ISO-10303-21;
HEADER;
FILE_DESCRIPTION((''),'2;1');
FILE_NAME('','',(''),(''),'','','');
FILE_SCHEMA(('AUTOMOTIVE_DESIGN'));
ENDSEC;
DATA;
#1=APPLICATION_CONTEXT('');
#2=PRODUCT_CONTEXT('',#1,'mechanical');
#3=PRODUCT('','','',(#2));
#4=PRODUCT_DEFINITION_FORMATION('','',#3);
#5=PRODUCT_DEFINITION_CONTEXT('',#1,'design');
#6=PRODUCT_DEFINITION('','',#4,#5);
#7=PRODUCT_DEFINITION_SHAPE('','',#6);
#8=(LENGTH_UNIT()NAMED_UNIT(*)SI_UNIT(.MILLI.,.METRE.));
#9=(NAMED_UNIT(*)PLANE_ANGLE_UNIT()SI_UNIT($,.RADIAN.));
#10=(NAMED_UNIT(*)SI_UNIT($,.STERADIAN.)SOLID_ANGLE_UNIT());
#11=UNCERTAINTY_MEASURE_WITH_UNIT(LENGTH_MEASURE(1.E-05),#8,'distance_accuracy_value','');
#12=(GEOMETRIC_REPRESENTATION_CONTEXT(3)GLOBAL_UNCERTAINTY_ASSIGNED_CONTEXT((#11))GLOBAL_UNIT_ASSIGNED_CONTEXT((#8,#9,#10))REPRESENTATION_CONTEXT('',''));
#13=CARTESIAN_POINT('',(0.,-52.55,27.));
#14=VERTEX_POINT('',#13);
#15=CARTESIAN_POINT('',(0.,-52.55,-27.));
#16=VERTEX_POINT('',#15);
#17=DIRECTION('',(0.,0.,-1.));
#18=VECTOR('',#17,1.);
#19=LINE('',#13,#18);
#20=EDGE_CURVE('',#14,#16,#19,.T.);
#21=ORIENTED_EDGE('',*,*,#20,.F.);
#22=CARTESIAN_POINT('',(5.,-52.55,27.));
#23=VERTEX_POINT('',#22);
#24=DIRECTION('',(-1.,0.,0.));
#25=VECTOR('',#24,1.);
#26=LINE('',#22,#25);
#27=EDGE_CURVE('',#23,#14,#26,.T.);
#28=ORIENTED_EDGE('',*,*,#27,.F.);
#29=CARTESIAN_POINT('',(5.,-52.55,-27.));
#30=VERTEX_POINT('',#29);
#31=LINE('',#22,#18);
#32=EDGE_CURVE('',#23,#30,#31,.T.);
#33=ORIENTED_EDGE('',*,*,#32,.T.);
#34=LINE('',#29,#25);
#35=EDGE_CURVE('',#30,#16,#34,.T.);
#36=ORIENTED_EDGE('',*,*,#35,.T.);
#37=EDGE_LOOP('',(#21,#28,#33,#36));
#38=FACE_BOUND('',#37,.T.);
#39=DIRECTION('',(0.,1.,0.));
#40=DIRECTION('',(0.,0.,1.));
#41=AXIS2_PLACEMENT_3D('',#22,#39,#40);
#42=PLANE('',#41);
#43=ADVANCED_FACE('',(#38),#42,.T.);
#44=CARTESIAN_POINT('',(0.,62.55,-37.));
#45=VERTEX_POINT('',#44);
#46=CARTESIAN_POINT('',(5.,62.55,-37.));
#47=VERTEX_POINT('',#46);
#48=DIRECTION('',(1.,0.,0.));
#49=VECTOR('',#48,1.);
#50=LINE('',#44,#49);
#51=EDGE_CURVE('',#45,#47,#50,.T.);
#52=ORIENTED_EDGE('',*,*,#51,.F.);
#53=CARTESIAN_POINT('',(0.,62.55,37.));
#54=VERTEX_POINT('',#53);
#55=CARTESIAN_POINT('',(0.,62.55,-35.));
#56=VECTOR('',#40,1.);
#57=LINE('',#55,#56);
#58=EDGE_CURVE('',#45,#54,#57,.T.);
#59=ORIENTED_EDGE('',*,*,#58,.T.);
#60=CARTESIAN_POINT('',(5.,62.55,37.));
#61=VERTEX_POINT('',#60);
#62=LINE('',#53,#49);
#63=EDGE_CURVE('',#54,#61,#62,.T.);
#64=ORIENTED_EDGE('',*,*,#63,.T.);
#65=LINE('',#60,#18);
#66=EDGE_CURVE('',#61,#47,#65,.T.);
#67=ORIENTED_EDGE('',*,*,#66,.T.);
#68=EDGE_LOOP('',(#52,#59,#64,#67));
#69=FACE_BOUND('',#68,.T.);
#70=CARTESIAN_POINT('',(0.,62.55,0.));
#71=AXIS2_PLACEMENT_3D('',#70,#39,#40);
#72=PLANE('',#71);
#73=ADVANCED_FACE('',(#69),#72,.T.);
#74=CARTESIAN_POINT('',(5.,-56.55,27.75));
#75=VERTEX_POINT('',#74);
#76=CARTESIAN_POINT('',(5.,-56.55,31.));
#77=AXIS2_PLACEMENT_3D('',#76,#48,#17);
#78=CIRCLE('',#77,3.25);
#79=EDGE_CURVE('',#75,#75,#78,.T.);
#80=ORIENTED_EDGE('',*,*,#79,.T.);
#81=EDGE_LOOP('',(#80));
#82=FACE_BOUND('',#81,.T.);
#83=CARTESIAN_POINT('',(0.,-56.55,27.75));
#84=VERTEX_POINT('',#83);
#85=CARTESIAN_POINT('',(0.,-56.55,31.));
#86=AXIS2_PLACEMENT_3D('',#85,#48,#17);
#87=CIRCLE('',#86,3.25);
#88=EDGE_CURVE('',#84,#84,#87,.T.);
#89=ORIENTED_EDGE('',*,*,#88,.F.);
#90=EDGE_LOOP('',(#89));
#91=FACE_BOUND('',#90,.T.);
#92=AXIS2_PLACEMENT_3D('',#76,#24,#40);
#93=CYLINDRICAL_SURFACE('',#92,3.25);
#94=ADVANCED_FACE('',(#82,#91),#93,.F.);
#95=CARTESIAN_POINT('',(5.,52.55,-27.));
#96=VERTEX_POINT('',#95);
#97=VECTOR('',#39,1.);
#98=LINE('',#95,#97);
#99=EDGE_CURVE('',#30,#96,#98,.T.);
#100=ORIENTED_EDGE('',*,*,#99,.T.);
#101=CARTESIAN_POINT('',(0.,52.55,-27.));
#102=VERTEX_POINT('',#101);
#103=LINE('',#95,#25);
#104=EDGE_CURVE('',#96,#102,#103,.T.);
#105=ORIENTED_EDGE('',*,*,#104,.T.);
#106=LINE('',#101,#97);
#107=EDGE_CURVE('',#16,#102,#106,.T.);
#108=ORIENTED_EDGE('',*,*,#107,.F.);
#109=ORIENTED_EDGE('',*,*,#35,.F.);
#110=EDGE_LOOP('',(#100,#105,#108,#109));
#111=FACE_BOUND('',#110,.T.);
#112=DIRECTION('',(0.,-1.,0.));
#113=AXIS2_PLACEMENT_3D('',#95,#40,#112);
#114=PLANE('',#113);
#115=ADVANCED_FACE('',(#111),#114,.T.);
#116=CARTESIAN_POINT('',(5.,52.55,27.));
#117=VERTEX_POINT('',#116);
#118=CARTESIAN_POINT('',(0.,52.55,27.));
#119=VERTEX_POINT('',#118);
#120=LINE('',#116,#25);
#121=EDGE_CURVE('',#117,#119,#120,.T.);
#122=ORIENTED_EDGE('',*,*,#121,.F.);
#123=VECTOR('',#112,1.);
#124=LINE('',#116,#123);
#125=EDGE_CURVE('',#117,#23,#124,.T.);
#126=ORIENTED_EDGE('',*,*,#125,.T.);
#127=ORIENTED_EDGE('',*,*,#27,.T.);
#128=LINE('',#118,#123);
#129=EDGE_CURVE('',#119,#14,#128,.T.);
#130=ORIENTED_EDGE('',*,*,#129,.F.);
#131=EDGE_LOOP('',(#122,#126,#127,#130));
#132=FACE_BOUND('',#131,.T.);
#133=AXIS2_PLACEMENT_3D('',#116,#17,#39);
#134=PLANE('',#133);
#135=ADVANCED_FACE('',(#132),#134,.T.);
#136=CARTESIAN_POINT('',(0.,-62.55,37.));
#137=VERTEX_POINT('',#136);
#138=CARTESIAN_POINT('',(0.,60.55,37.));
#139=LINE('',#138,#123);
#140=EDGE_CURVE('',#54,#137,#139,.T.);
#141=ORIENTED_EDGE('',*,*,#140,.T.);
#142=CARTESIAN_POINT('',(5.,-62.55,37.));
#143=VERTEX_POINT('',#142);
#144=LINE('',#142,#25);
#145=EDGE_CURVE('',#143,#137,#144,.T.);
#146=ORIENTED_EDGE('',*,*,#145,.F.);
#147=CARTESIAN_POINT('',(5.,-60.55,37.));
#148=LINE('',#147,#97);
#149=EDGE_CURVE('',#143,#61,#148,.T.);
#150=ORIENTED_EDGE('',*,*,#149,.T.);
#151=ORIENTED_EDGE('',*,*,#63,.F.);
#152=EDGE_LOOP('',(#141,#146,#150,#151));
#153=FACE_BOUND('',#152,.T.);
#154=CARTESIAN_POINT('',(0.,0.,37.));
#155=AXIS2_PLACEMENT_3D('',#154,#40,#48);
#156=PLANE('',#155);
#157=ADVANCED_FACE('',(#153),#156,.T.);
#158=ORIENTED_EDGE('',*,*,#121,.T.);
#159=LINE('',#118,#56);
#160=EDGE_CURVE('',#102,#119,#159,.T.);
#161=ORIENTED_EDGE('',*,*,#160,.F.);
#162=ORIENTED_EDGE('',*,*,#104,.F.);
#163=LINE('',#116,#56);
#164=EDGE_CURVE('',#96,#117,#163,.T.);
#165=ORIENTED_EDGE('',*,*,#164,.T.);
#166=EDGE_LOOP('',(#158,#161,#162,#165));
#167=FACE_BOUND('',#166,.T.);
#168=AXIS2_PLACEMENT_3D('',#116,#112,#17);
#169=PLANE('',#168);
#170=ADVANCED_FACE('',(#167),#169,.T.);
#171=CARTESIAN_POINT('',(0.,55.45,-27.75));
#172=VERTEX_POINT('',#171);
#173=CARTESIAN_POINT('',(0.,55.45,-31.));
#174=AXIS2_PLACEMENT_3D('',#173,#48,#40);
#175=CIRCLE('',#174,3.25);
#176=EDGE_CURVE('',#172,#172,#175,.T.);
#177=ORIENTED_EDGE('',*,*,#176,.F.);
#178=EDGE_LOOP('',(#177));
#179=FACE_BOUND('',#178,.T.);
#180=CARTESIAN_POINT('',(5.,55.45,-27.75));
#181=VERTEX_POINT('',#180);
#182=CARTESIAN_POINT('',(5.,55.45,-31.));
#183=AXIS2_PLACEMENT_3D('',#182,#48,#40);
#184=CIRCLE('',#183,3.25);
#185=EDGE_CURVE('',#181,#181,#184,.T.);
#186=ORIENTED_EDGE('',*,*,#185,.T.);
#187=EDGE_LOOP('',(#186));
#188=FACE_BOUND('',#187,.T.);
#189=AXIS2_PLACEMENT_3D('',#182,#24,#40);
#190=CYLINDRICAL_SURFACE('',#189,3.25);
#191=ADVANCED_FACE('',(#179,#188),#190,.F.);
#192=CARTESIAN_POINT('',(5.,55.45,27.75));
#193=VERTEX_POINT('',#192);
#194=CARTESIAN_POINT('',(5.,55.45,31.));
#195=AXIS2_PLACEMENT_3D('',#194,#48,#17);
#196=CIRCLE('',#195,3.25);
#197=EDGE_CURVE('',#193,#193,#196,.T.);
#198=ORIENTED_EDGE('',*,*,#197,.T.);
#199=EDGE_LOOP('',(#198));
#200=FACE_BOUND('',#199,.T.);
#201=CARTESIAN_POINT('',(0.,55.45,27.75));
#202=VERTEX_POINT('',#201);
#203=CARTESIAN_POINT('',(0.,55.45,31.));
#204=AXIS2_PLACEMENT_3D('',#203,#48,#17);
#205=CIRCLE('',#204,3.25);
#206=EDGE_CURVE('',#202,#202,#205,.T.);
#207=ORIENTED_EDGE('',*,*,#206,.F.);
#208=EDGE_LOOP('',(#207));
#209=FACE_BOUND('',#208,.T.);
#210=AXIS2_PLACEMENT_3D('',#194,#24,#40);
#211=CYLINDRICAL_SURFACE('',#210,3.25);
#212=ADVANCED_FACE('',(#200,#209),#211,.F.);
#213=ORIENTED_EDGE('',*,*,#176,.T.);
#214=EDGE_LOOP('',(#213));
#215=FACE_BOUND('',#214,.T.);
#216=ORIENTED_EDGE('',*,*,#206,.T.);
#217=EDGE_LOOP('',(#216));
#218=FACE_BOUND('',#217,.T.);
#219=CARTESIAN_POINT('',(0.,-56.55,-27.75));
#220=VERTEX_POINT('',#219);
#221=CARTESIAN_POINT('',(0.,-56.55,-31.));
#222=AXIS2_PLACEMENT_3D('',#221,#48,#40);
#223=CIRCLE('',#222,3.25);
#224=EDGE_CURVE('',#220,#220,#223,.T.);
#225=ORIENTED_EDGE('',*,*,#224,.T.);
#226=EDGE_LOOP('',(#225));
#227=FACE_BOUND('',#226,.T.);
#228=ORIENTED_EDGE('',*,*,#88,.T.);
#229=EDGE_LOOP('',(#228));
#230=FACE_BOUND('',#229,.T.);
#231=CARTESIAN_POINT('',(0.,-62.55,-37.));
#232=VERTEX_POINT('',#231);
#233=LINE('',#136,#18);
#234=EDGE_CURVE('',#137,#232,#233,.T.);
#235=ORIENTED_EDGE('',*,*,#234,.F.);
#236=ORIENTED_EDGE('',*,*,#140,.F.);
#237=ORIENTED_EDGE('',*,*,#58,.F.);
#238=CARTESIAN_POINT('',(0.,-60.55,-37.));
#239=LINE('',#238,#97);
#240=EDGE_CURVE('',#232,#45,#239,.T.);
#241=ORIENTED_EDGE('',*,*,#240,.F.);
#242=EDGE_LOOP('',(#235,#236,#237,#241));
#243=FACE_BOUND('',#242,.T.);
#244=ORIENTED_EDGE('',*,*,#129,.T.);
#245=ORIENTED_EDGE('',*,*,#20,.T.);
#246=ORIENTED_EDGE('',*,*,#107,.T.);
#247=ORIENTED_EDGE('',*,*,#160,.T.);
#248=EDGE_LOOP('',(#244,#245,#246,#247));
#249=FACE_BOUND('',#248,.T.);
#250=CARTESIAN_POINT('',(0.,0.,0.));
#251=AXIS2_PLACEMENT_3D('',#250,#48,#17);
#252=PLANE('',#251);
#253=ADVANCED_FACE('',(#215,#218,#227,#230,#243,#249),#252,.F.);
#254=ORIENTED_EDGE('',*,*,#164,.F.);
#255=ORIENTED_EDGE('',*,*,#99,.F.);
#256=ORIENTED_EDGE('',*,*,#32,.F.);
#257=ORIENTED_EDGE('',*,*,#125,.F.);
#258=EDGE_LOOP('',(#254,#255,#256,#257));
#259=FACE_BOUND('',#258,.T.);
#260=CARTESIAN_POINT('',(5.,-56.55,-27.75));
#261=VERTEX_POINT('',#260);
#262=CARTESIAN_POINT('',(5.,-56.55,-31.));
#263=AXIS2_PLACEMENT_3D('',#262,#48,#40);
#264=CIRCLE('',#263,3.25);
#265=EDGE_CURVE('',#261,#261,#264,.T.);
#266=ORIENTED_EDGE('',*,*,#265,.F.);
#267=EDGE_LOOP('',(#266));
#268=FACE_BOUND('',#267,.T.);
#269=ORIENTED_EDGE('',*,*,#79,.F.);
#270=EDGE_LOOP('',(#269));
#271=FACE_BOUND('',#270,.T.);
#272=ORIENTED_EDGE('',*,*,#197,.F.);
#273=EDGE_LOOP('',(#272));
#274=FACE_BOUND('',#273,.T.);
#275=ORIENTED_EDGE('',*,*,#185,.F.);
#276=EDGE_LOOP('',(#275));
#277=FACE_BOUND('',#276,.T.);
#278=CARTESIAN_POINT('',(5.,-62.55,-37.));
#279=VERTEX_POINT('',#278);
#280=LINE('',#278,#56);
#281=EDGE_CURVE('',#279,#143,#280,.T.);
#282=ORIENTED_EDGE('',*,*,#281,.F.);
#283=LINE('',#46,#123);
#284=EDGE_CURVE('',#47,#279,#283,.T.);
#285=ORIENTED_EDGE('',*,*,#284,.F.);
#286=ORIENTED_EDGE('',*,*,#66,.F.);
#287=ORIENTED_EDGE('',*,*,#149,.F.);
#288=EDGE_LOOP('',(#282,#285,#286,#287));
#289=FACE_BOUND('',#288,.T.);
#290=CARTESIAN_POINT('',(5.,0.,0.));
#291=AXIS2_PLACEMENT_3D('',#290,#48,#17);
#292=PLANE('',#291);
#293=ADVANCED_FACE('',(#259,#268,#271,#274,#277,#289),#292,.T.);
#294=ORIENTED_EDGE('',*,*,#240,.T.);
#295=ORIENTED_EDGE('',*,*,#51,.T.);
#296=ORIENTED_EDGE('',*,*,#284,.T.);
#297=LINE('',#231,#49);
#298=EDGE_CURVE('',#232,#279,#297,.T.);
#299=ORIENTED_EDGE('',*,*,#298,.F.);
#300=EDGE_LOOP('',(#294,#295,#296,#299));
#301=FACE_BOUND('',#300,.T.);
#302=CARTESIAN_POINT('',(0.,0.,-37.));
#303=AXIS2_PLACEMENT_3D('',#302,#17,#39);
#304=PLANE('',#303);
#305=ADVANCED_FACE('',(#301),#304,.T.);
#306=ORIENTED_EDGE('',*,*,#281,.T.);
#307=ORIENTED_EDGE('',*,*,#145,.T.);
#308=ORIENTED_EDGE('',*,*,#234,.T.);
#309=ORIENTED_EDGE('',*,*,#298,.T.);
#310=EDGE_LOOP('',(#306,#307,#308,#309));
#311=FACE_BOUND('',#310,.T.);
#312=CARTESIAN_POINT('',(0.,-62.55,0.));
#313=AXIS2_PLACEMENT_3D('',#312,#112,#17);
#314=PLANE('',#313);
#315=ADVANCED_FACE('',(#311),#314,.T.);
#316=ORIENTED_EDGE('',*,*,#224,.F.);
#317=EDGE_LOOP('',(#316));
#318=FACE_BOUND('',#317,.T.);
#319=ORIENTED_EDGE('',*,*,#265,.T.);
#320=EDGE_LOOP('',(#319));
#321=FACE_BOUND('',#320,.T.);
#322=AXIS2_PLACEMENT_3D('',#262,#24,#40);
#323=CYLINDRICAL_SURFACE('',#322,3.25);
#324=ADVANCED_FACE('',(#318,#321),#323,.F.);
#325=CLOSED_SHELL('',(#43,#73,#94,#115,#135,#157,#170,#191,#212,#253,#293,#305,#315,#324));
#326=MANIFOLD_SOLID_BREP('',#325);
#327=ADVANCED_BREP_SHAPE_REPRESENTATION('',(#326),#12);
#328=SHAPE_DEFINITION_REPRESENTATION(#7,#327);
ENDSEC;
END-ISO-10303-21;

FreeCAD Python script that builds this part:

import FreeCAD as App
import Part
import Sketcher
from FreeCAD import Vector

doc = App.newDocument("Part")
params = doc.addObject("Spreadsheet::Sheet", "Params")
for row, (alias, value) in enumerate([
    ("sketch1_diameter", "6.5 mm"),
    ("sketch1_height", "70 mm"),
    ("sketch1_height2", "54 mm"),
    ("sketch1_width", "121.1 mm"),
    ("sketch1_width2", "105.1 mm"),
    ("pad1_length", "5 mm"),
    ("sketch2_width", "5 mm"),
    ("sketch2_height", "121.1 mm"),
    ("pad2_length", "2 mm"),
    ("sketch3_width", "5 mm"),
    ("sketch3_height", "72 mm"),
    ("pad3_length", "2 mm"),
    ("sketch4_width", "5 mm"),
    ("sketch4_height", "123.1 mm"),
    ("pad4_length", "2 mm"),
    ("sketch5_width", "5 mm"),
    ("sketch5_height", "74 mm"),
    ("pad5_length", "2 mm"),
], start=1):
    params.set(f"A{row}", alias)
    params.set(f"B{row}", "=" + value)
    params.setAlias(f"B{row}", alias)

body = doc.addObject("PartDesign::Body", "Body")

# Sketch on YZ plane
sketch1 = doc.addObject("Sketcher::SketchObject", "Sketch")
body.addObject(sketch1)
sketch1.AttachmentSupport = (doc.YZ_Plane, [""])
sketch1.MapMode = "FlatFace"
sketch1.addGeometry(Part.LineSegment(Vector(60.55, 35, 0), Vector(-60.55, 35, 0)), False)
sketch1.addGeometry(Part.LineSegment(Vector(-60.55, 35, 0), Vector(-60.55, -35, 0)), False)
sketch1.addGeometry(Part.LineSegment(Vector(-60.55, -35, 0), Vector(60.55, -35, 0)), False)
sketch1.addGeometry(Part.LineSegment(Vector(60.55, -35, 0), Vector(60.55, 35, 0)), False)
sketch1.addGeometry(Part.Circle(Vector(-56.55, 31, 0), Vector(0, 0, 1), 3.25), False)
sketch1.addGeometry(Part.Circle(Vector(-56.55, -31, 0), Vector(0, 0, 1), 3.25), False)
sketch1.addGeometry(Part.Circle(Vector(55.45, 31, 0), Vector(0, 0, 1), 3.25), False)
sketch1.addGeometry(Part.LineSegment(Vector(-52.55, -27, 0), Vector(-52.55, 27, 0)), False)
sketch1.addGeometry(Part.LineSegment(Vector(-52.55, 27, 0), Vector(52.55, 27, 0)), False)
sketch1.addGeometry(Part.LineSegment(Vector(52.55, 27, 0), Vector(52.55, -27, 0)), False)
sketch1.addGeometry(Part.LineSegment(Vector(52.55, -27, 0), Vector(-52.55, -27, 0)), False)
sketch1.addGeometry(Part.Circle(Vector(55.45, -31, 0), Vector(0, 0, 1), 3.25), False)
sketch1.addConstraint(Sketcher.Constraint("Coincident", 0, 2, 1, 1))
sketch1.addConstraint(Sketcher.Constraint("Coincident", 1, 2, 2, 1))
sketch1.addConstraint(Sketcher.Constraint("Coincident", 2, 2, 3, 1))
sketch1.addConstraint(Sketcher.Constraint("Coincident", 3, 2, 0, 1))
sketch1.addConstraint(Sketcher.Constraint("Coincident", 7, 2, 8, 1))
sketch1.addConstraint(Sketcher.Constraint("Coincident", 8, 2, 9, 1))
sketch1.addConstraint(Sketcher.Constraint("Coincident", 9, 2, 10, 1))
sketch1.addConstraint(Sketcher.Constraint("Coincident", 10, 2, 7, 1))
sketch1.addConstraint(Sketcher.Constraint("Horizontal", 0))
sketch1.addConstraint(Sketcher.Constraint("Vertical", 1))
sketch1.addConstraint(Sketcher.Constraint("Horizontal", 2))
sketch1.addConstraint(Sketcher.Constraint("Vertical", 3))
sketch1.addConstraint(Sketcher.Constraint("Vertical", 7))
sketch1.addConstraint(Sketcher.Constraint("Horizontal", 8))
sketch1.addConstraint(Sketcher.Constraint("Vertical", 9))
sketch1.addConstraint(Sketcher.Constraint("Horizontal", 10))
sketch1.addConstraint(Sketcher.Constraint("Equal", 4, 5))
sketch1.addConstraint(Sketcher.Constraint("Equal", 5, 6))
sketch1.addConstraint(Sketcher.Constraint("Equal", 6, 11))
sketch1.addConstraint(Sketcher.Constraint("Symmetric", 0, 2, 2, 2, -1, 1))
sketch1.addConstraint(Sketcher.Constraint("Symmetric", 7, 2, 9, 2, -1, 1))
sketch1.addConstraint(Sketcher.Constraint("Symmetric", 4, 3, 5, 3, -1))
sketch1.addConstraint(Sketcher.Constraint("Symmetric", 6, 3, 11, 3, -1))
sketch1.addConstraint(Sketcher.Constraint("Horizontal", 4, 3, 6, 3))
sketch1.addConstraint(Sketcher.Constraint("Diameter", 4, 6.5))
sketch1.addConstraint(Sketcher.Constraint("DistanceY", 1, 2, 1, 1, 70.0))
sketch1.addConstraint(Sketcher.Constraint("DistanceY", 7, 1, 7, 2, 54.0))
sketch1.addConstraint(Sketcher.Constraint("DistanceX", 0, 2, 0, 1, 121.1))
sketch1.addConstraint(Sketcher.Constraint("DistanceX", 8, 1, 8, 2, 105.1))
sketch1.addConstraint(Sketcher.Constraint("DistanceY", -1, 1, 4, 3, 31.0))
sketch1.addConstraint(Sketcher.Constraint("DistanceX", 4, 3, 6, 3, 112.0))
sketch1.addConstraint(Sketcher.Constraint("DistanceX", 0, 2, 4, 3, 4.0))
sketch1.setExpression("Constraints[24]", "Params.sketch1_diameter")
sketch1.setExpression("Constraints[25]", "Params.sketch1_height")
sketch1.setExpression("Constraints[26]", "Params.sketch1_height2")
sketch1.setExpression("Constraints[27]", "Params.sketch1_width")
sketch1.setExpression("Constraints[28]", "Params.sketch1_width2")
pad1 = doc.addObject("PartDesign::Pad", "Pad")
body.addObject(pad1)
pad1.Profile = sketch1
pad1.setExpression("Length", "Params.pad1_length")

# Sketch on XY plane
sketch2 = doc.addObject("Sketcher::SketchObject", "Sketch001")
body.addObject(sketch2)
sketch2.AttachmentSupport = (doc.XY_Plane, [""])
sketch2.MapMode = "FlatFace"
sketch2.AttachmentOffset = App.Placement(Vector(0, 0, 35), App.Rotation())
sketch2.addGeometry(Part.LineSegment(Vector(0, 60.55, 0), Vector(0, -60.55, 0)), False)
sketch2.addGeometry(Part.LineSegment(Vector(0, -60.55, 0), Vector(5, -60.55, 0)), False)
sketch2.addGeometry(Part.LineSegment(Vector(5, -60.55, 0), Vector(5, 60.55, 0)), False)
sketch2.addGeometry(Part.LineSegment(Vector(5, 60.55, 0), Vector(0, 60.55, 0)), False)
sketch2.addConstraint(Sketcher.Constraint("Coincident", 0, 2, 1, 1))
sketch2.addConstraint(Sketcher.Constraint("Coincident", 1, 2, 2, 1))
sketch2.addConstraint(Sketcher.Constraint("Coincident", 2, 2, 3, 1))
sketch2.addConstraint(Sketcher.Constraint("Coincident", 3, 2, 0, 1))
sketch2.addConstraint(Sketcher.Constraint("Vertical", 0))
sketch2.addConstraint(Sketcher.Constraint("Horizontal", 1))
sketch2.addConstraint(Sketcher.Constraint("Vertical", 2))
sketch2.addConstraint(Sketcher.Constraint("Horizontal", 3))
sketch2.addConstraint(Sketcher.Constraint("Symmetric", 0, 2, 3, 2, -1, 1))
sketch2.addConstraint(Sketcher.Constraint("DistanceX", 1, 1, 1, 2, 5.0))
sketch2.addConstraint(Sketcher.Constraint("DistanceY", 0, 2, 0, 1, 121.1))
sketch2.setExpression("Constraints[9]", "Params.sketch2_width")
sketch2.setExpression("Constraints[10]", "Params.sketch2_height")
pad2 = doc.addObject("PartDesign::Pad", "Pad001")
body.addObject(pad2)
pad2.Profile = sketch2
pad2.setExpression("Length", "Params.pad2_length")

# Sketch on XZ plane
sketch3 = doc.addObject("Sketcher::SketchObject", "Sketch002")
body.addObject(sketch3)
sketch3.AttachmentSupport = (doc.XZ_Plane, [""])
sketch3.MapMode = "FlatFace"
sketch3.AttachmentOffset = App.Placement(Vector(0, 0, -60.55), App.Rotation())
sketch3.addGeometry(Part.LineSegment(Vector(0, -35, 0), Vector(0, 37, 0)), False)
sketch3.addGeometry(Part.LineSegment(Vector(0, 37, 0), Vector(5, 37, 0)), False)
sketch3.addGeometry(Part.LineSegment(Vector(5, 37, 0), Vector(5, -35, 0)), False)
sketch3.addGeometry(Part.LineSegment(Vector(5, -35, 0), Vector(0, -35, 0)), False)
sketch3.addConstraint(Sketcher.Constraint("Coincident", 0, 2, 1, 1))
sketch3.addConstraint(Sketcher.Constraint("Coincident", 1, 2, 2, 1))
sketch3.addConstraint(Sketcher.Constraint("Coincident", 2, 2, 3, 1))
sketch3.addConstraint(Sketcher.Constraint("Coincident", 3, 2, 0, 1))
sketch3.addConstraint(Sketcher.Constraint("Vertical", 0))
sketch3.addConstraint(Sketcher.Constraint("Horizontal", 1))
sketch3.addConstraint(Sketcher.Constraint("Vertical", 2))
sketch3.addConstraint(Sketcher.Constraint("Horizontal", 3))
sketch3.addConstraint(Sketcher.Constraint("PointOnObject", 0, 2, -2))
sketch3.addConstraint(Sketcher.Constraint("DistanceX", 1, 1, 1, 2, 5.0))
sketch3.addConstraint(Sketcher.Constraint("DistanceY", 0, 1, 0, 2, 72.0))
sketch3.addConstraint(Sketcher.Constraint("DistanceY", -1, 1, 0, 2, 37.0))
sketch3.setExpression("Constraints[9]", "Params.sketch3_width")
sketch3.setExpression("Constraints[10]", "Params.sketch3_height")
pad3 = doc.addObject("PartDesign::Pad", "Pad002")
body.addObject(pad3)
pad3.Profile = sketch3
pad3.setExpression("Length", "Params.pad3_length")
pad3.Reversed = True

# Sketch on XY plane
sketch4 = doc.addObject("Sketcher::SketchObject", "Sketch003")
body.addObject(sketch4)
sketch4.AttachmentSupport = (doc.XY_Plane, [""])
sketch4.MapMode = "FlatFace"
sketch4.AttachmentOffset = App.Placement(Vector(0, 0, -35), App.Rotation())
sketch4.addGeometry(Part.LineSegment(Vector(5, 62.55, 0), Vector(5, -60.55, 0)), False)
sketch4.addGeometry(Part.LineSegment(Vector(5, -60.55, 0), Vector(0, -60.55, 0)), False)
sketch4.addGeometry(Part.LineSegment(Vector(0, -60.55, 0), Vector(0, 62.55, 0)), False)
sketch4.addGeometry(Part.LineSegment(Vector(0, 62.55, 0), Vector(5, 62.55, 0)), False)
sketch4.addConstraint(Sketcher.Constraint("Coincident", 0, 2, 1, 1))
sketch4.addConstraint(Sketcher.Constraint("Coincident", 1, 2, 2, 1))
sketch4.addConstraint(Sketcher.Constraint("Coincident", 2, 2, 3, 1))
sketch4.addConstraint(Sketcher.Constraint("Coincident", 3, 2, 0, 1))
sketch4.addConstraint(Sketcher.Constraint("Vertical", 0))
sketch4.addConstraint(Sketcher.Constraint("Horizontal", 1))
sketch4.addConstraint(Sketcher.Constraint("Vertical", 2))
sketch4.addConstraint(Sketcher.Constraint("Horizontal", 3))
sketch4.addConstraint(Sketcher.Constraint("PointOnObject", 1, 2, -2))
sketch4.addConstraint(Sketcher.Constraint("DistanceX", 1, 2, 1, 1, 5.0))
sketch4.addConstraint(Sketcher.Constraint("DistanceY", 0, 2, 0, 1, 123.1))
sketch4.addConstraint(Sketcher.Constraint("DistanceY", 0, 2, -1, 1, 60.55))
sketch4.setExpression("Constraints[9]", "Params.sketch4_width")
sketch4.setExpression("Constraints[10]", "Params.sketch4_height")
pad4 = doc.addObject("PartDesign::Pad", "Pad003")
body.addObject(pad4)
pad4.Profile = sketch4
pad4.setExpression("Length", "Params.pad4_length")
pad4.Reversed = True

# Sketch on XZ plane
sketch5 = doc.addObject("Sketcher::SketchObject", "Sketch004")
body.addObject(sketch5)
sketch5.AttachmentSupport = (doc.XZ_Plane, [""])
sketch5.MapMode = "FlatFace"
sketch5.AttachmentOffset = App.Placement(Vector(0, 0, 60.55), App.Rotation())
sketch5.addGeometry(Part.LineSegment(Vector(0, 37, 0), Vector(0, -37, 0)), False)
sketch5.addGeometry(Part.LineSegment(Vector(0, -37, 0), Vector(5, -37, 0)), False)
sketch5.addGeometry(Part.LineSegment(Vector(5, -37, 0), Vector(5, 37, 0)), False)
sketch5.addGeometry(Part.LineSegment(Vector(5, 37, 0), Vector(0, 37, 0)), False)
sketch5.addConstraint(Sketcher.Constraint("Coincident", 0, 2, 1, 1))
sketch5.addConstraint(Sketcher.Constraint("Coincident", 1, 2, 2, 1))
sketch5.addConstraint(Sketcher.Constraint("Coincident", 2, 2, 3, 1))
sketch5.addConstraint(Sketcher.Constraint("Coincident", 3, 2, 0, 1))
sketch5.addConstraint(Sketcher.Constraint("Vertical", 0))
sketch5.addConstraint(Sketcher.Constraint("Horizontal", 1))
sketch5.addConstraint(Sketcher.Constraint("Vertical", 2))
sketch5.addConstraint(Sketcher.Constraint("Horizontal", 3))
sketch5.addConstraint(Sketcher.Constraint("Symmetric", 0, 2, 3, 2, -1, 1))
sketch5.addConstraint(Sketcher.Constraint("DistanceX", 1, 1, 1, 2, 5.0))
sketch5.addConstraint(Sketcher.Constraint("DistanceY", 0, 2, 0, 1, 74.0))
sketch5.setExpression("Constraints[9]", "Params.sketch5_width")
sketch5.setExpression("Constraints[10]", "Params.sketch5_height")
pad5 = doc.addObject("PartDesign::Pad", "Pad004")
body.addObject(pad5)
pad5.Profile = sketch5
pad5.setExpression("Length", "Params.pad5_length")

doc.recompute()
